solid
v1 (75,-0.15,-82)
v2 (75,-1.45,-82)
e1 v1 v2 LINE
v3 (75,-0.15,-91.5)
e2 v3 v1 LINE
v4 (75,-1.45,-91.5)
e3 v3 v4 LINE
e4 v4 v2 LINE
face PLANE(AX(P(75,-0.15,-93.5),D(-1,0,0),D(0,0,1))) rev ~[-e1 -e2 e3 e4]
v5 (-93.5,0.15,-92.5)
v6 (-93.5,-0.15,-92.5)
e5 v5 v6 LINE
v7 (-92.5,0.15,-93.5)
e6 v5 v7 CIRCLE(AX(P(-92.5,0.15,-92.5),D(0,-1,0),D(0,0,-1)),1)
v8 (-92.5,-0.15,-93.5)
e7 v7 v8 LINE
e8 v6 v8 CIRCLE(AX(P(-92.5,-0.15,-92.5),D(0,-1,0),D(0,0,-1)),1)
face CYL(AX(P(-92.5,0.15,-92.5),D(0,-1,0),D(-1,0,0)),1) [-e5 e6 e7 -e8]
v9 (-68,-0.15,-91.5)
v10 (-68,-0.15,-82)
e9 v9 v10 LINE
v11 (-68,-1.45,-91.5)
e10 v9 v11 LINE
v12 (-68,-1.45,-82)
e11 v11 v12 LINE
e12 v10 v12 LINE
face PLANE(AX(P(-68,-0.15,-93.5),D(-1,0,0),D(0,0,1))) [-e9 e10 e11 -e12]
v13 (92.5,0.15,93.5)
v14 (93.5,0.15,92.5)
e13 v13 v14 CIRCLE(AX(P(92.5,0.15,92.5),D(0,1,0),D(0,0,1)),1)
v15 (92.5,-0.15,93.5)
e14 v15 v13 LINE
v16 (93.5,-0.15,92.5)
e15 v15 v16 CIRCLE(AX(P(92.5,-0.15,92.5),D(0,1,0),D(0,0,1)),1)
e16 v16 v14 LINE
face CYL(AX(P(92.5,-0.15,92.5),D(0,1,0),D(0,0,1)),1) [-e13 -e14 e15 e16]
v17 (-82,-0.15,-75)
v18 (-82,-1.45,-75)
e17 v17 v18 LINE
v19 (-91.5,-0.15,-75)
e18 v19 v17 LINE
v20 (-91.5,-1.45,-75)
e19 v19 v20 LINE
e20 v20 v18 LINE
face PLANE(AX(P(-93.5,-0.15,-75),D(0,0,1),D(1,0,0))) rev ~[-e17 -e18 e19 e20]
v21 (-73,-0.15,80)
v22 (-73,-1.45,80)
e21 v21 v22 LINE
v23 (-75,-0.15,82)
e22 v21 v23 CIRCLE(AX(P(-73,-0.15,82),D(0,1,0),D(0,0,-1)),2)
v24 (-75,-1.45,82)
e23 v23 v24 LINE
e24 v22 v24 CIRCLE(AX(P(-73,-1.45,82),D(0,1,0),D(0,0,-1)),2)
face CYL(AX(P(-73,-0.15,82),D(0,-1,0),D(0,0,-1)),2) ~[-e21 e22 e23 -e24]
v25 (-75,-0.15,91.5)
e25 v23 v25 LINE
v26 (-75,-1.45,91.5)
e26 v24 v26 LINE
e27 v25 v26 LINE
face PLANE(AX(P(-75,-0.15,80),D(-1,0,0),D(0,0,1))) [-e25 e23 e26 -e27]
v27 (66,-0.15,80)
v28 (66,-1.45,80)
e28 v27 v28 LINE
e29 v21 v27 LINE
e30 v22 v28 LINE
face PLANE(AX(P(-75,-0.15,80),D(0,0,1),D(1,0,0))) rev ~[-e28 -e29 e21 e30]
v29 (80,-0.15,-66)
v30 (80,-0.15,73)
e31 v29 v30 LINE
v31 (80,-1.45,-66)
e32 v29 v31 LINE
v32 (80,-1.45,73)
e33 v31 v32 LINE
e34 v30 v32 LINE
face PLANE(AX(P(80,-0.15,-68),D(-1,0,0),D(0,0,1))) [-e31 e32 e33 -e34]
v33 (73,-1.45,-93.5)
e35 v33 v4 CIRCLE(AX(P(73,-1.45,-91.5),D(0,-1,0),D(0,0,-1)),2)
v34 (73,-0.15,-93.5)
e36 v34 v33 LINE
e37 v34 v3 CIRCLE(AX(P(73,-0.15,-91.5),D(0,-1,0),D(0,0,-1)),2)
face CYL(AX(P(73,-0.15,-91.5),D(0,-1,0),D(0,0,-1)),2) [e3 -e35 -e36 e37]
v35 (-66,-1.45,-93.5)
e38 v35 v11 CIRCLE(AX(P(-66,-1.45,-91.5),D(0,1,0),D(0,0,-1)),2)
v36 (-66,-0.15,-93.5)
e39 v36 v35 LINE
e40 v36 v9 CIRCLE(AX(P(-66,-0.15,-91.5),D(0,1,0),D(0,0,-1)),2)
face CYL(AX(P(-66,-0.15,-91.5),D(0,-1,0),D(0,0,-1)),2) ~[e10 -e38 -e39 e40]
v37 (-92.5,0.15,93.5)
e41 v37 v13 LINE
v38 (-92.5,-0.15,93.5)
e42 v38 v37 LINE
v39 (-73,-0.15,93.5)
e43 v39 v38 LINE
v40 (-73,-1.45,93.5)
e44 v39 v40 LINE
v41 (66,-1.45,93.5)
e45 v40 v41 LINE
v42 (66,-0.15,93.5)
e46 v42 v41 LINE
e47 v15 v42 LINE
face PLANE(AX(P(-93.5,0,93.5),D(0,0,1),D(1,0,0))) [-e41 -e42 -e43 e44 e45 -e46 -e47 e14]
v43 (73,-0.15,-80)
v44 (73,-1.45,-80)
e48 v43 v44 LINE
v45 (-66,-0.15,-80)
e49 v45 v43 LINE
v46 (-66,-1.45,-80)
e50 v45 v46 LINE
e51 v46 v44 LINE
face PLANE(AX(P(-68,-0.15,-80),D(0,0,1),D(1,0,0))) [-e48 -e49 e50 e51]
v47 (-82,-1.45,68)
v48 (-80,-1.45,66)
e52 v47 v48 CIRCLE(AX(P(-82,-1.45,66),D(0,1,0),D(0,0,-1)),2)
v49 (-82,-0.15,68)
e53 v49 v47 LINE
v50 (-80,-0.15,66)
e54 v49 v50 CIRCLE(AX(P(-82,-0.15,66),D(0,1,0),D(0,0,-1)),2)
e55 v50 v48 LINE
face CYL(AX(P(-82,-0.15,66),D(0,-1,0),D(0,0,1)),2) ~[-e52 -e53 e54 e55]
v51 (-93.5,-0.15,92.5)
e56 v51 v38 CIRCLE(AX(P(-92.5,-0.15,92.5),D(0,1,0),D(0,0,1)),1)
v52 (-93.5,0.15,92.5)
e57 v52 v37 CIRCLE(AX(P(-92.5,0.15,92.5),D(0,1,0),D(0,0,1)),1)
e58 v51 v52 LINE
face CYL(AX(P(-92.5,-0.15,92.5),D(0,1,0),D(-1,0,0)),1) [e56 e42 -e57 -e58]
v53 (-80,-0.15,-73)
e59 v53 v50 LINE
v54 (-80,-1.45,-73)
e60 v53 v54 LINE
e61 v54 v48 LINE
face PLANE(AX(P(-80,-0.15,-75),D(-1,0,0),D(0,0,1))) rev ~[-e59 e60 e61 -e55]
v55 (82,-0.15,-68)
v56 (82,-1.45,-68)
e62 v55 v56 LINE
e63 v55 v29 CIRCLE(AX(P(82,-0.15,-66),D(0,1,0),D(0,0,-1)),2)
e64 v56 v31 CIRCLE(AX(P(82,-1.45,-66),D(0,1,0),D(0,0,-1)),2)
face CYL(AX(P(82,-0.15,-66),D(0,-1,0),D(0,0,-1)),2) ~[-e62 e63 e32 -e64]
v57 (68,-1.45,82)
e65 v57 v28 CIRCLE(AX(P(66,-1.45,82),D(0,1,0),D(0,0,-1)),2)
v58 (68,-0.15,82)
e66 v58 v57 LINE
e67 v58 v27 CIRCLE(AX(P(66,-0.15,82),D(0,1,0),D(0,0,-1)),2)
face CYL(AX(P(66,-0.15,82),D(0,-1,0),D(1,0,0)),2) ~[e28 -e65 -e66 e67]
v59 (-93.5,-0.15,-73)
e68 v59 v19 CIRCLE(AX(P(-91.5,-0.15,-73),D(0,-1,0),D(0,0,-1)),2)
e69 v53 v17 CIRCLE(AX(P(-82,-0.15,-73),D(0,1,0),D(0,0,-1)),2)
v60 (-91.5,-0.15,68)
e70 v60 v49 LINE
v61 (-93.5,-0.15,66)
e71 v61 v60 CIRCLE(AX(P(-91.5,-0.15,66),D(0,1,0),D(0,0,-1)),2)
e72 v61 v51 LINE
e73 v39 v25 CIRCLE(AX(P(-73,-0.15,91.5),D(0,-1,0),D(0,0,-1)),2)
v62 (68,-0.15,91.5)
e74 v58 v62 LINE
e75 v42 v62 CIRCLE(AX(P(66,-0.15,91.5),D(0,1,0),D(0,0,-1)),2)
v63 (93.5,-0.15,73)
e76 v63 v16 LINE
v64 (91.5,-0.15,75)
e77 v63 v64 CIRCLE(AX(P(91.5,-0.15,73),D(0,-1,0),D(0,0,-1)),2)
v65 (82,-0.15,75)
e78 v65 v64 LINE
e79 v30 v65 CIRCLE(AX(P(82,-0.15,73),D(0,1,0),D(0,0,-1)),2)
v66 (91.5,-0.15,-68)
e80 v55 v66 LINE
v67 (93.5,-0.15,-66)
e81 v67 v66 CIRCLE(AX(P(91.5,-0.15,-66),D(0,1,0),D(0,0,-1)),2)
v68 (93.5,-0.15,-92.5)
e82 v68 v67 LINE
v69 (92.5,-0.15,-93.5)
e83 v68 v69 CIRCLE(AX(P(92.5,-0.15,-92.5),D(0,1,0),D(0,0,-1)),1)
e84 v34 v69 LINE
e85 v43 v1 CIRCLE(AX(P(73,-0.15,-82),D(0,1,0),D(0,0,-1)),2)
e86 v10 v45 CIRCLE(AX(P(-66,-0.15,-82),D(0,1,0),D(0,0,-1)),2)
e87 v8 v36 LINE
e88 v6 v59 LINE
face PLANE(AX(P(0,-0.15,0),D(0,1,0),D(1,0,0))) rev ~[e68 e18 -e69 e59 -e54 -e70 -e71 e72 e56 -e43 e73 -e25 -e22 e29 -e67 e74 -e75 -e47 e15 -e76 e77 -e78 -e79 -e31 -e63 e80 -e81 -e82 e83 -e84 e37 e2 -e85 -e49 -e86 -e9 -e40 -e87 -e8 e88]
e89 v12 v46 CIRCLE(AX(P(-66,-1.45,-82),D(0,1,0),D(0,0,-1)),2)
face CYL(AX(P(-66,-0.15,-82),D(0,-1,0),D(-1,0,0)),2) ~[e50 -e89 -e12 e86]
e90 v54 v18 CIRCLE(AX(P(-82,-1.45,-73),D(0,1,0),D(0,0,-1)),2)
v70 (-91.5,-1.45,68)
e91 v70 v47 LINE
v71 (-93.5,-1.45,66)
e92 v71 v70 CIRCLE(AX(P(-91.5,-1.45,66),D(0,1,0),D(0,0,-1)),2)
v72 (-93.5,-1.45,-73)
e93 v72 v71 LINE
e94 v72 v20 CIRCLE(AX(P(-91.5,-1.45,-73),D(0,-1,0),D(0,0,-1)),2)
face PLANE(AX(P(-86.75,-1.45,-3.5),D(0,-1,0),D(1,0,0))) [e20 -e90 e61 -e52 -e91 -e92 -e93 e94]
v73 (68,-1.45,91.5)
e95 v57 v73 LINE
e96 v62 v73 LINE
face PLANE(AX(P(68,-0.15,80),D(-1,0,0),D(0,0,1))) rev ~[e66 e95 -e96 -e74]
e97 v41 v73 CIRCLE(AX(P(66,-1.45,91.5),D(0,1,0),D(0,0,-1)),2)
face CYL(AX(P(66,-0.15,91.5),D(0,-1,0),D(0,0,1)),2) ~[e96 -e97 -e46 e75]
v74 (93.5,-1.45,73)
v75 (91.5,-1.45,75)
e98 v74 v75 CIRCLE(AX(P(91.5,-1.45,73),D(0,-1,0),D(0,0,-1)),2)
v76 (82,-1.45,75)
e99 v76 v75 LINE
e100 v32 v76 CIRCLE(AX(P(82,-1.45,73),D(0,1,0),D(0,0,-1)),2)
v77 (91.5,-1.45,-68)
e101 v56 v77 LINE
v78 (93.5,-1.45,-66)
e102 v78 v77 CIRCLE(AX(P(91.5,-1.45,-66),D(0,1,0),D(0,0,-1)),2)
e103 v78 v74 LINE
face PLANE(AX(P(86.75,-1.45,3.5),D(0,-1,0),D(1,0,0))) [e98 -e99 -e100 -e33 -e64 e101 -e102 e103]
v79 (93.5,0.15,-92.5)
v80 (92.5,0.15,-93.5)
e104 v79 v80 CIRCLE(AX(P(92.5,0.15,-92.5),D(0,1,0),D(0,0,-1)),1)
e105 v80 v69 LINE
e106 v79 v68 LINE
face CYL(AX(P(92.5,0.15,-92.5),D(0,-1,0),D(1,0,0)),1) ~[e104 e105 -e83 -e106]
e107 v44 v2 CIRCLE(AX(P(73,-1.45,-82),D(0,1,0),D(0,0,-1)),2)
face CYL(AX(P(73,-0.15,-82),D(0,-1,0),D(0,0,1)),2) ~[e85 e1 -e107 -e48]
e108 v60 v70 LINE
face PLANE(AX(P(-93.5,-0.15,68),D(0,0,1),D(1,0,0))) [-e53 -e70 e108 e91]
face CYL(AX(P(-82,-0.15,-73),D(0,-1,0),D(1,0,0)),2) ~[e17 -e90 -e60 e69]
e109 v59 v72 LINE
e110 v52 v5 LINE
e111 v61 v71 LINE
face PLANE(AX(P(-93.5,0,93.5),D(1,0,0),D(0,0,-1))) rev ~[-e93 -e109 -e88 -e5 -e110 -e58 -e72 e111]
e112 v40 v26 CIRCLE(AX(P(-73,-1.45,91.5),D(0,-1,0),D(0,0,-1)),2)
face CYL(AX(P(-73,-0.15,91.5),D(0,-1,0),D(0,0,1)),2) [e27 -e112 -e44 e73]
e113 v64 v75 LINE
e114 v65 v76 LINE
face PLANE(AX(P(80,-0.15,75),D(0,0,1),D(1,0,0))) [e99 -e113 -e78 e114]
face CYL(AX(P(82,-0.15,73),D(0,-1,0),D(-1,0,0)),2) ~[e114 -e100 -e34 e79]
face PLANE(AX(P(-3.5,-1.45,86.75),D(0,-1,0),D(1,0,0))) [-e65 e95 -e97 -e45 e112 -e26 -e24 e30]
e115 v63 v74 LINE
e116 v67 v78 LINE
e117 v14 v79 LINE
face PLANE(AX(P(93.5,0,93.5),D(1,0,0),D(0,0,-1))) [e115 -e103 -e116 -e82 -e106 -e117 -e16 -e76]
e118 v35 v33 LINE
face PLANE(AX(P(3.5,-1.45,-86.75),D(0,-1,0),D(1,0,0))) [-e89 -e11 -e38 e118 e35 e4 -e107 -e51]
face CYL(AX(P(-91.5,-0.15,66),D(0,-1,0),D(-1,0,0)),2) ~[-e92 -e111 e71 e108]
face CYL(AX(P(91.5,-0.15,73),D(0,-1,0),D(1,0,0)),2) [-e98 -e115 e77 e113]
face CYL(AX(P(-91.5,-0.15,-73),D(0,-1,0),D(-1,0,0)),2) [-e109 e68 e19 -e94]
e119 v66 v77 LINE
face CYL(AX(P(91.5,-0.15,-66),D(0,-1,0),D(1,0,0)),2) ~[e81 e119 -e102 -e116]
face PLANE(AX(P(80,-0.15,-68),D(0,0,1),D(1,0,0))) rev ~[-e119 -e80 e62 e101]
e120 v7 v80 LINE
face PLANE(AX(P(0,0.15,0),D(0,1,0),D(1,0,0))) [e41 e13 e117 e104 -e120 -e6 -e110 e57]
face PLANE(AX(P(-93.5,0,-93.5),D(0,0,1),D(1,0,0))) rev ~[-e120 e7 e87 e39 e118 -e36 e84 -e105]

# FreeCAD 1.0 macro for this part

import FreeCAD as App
import Part
import Sketcher
Q = App.Units.Quantity


def edges_at(feature, points):
    """Names of the edges that pass closest to the given points."""
    edges = feature.Shape.Edges
    near = lambda p: min(range(len(edges)), key=lambda i: edges[i].distToShape(Part.Vertex(*p))[0])
    return sorted({f"Edge{near(p) + 1}" for p in points})


def add_polygon(sketch, points):
    """Adds a closed chain of lines whose ends are joined by coincident constraints."""
    first, n = sketch.GeometryCount, len(points)
    for a, b in zip(points, points[1:] + points[:1]):
        sketch.addGeometry(Part.LineSegment(App.Vector(*a, 0), App.Vector(*b, 0)), False)
    for i in range(n):
        sketch.addConstraint(Sketcher.Constraint("Coincident", first + i, 2, first + (i + 1) % n, 1))

doc = App.newDocument("Part")
params = doc.addObject("Spreadsheet::Sheet", "Params")
for row, (alias, value) in enumerate([
    ("sketch1_width", "187 mm"),
    ("pad1_length", "0.3 mm"),
    ("sketch2_width", "143 mm"),
    ("sketch2_width2", "13.5 mm"),
    ("pad2_length", "1.3 mm"),
    ("fillet_radius", "2 mm"),
    ("fillet2_radius", "1 mm"),
], start=1):
    params.set(f"A{row}", alias)
    params.set(f"B{row}", "=" + value)
    params.setAlias(f"B{row}", alias)

body = doc.addObject("PartDesign::Body", "Body")

sketch1 = body.newObject("Sketcher::SketchObject", "Sketch")
sketch1.AttachmentSupport = (doc.getObject("XZ_Plane"), [""])
sketch1.MapMode = "FlatFace"
add_polygon(sketch1, [(-94, -94), (-94, 94), (94, 94), (94, -94)])
sketch1.addConstraint(Sketcher.Constraint("Vertical", 0))
sketch1.addConstraint(Sketcher.Constraint("Horizontal", 1))
sketch1.addConstraint(Sketcher.Constraint("Vertical", 2))
sketch1.addConstraint(Sketcher.Constraint("Horizontal", 3))
sketch1.addConstraint(Sketcher.Constraint("Symmetric", 0, 2, 2, 2, -1, 1))
sketch1.addConstraint(Sketcher.Constraint("Equal", 3, 0))
sketch1.addConstraint(Sketcher.Constraint("DistanceX", 1, 1, 1, 2, Q("187 mm")))
sketch1.setExpression("Constraints[10]", "Params.sketch1_width")
pad1 = body.newObject("PartDesign::Pad", "Pad")
pad1.Profile = sketch1
pad1.setExpression("Length", "Params.pad1_length")
pad1.Midplane = True

sketch2 = body.newObject("Sketcher::SketchObject", "Sketch001")
sketch2.AttachmentSupport = (doc.getObject("XZ_Plane"), [""])
sketch2.MapMode = "FlatFace"
sketch2.AttachmentOffset = App.Placement(App.Vector(0, 0, 0.15), App.Rotation())
add_polygon(sketch2, [(-94, 68), (-94, -75), (-80, -75), (-80, 68)])
add_polygon(sketch2, [(-68, -80), (-68, -94), (75, -94), (75, -80)])
add_polygon(sketch2, [(-75, 94), (-75, 80), (68, 80), (68, 94)])
add_polygon(sketch2, [(80, 75), (80, -68), (94, -68), (94, 75)])
sketch2.addConstraint(Sketcher.Constraint("Vertical", 0))
sketch2.addConstraint(Sketcher.Constraint("Horizontal", 1))
sketch2.addConstraint(Sketcher.Constraint("Vertical", 2))
sketch2.addConstraint(Sketcher.Constraint("Horizontal", 3))
sketch2.addConstraint(Sketcher.Constraint("Vertical", 4))
sketch2.addConstraint(Sketcher.Constraint("Horizontal", 5))
sketch2.addConstraint(Sketcher.Constraint("Vertical", 6))
sketch2.addConstraint(Sketcher.Constraint("Horizontal", 7))
sketch2.addConstraint(Sketcher.Constraint("Vertical", 8))
sketch2.addConstraint(Sketcher.Constraint("Horizontal", 9))
sketch2.addConstraint(Sketcher.Constraint("Vertical", 10))
sketch2.addConstraint(Sketcher.Constraint("Horizontal", 11))
sketch2.addConstraint(Sketcher.Constraint("Vertical", 12))
sketch2.addConstraint(Sketcher.Constraint("Horizontal", 13))
sketch2.addConstraint(Sketcher.Constraint("Vertical", 14))
sketch2.addConstraint(Sketcher.Constraint("Horizontal", 15))
sketch2.addConstraint(Sketcher.Constraint("Symmetric", 6, 2, 8, 2, -1, 1))
sketch2.addConstraint(Sketcher.Constraint("Symmetric", 4, 2, 10, 2, -1, 1))
sketch2.addConstraint(Sketcher.Constraint("Symmetric", 2, 2, 12, 2, -1, 1))
sketch2.addConstraint(Sketcher.Constraint("Symmetric", 0, 2, 14, 2, -1, 1))
sketch2.addConstraint(Sketcher.Constraint("Equal", 11, 0))
sketch2.addConstraint(Sketcher.Constraint("Equal", 15, 4))
sketch2.addConstraint(Sketcher.Constraint("DistanceX", 5, 1, 5, 2, Q("143 mm")))
sketch2.addConstraint(Sketcher.Constraint("DistanceX", 1, 1, 1, 2, Q("13.5 mm")))
sketch2.addConstraint(Sketcher.Constraint("DistanceY", 0, 2, -1, 1, Q("75 mm")))
sketch2.addConstraint(Sketcher.Constraint("DistanceX", 1, 2, -1, 1, Q("80 mm")))
sketch2.addConstraint(Sketcher.Constraint("DistanceX", 4, 2, -1, 1, Q("68 mm")))
sketch2.addConstraint(Sketcher.Constraint("DistanceY", 6, 2, -1, 1, Q("80 mm")))
sketch2.setExpression("Constraints[38]", "Params.sketch2_width")
sketch2.setExpression("Constraints[39]", "Params.sketch2_width2")
pad2 = body.newObject("PartDesign::Pad", "Pad001")
pad2.Profile = sketch2
pad2.setExpression("Length", "Params.pad2_length")
doc.recompute()

fillet = body.newObject("PartDesign::Fillet", "Fillet")
fillet.Base = (pad2, edges_at(pad2, [
    (75, -0.8, -93.5),
    (75, -0.8, -80),
    (-68, -0.8, -80),
    (-68, -0.8, -93.5),
    (-80, -0.8, -75),
    (-80, -0.8, 68),
    (-93.5, -0.8, 68),
    (-93.5, -0.8, -75),
    (-75, -0.8, 80),
    (68, -0.8, 80),
    (68, -0.8, 93.5),
    (-75, -0.8, 93.5),
    (80, -0.8, 75),
    (80, -0.8, -68),
    (93.5, -0.8, -68),
    (93.5, -0.8, 75),
]))
fillet.setExpression("Radius", "Params.fillet_radius")
doc.recompute()

fillet2 = body.newObject("PartDesign::Fillet", "Fillet001")
fillet2.Base = (fillet, edges_at(fillet, [
    (93.5, 0, 93.5),
    (-93.5, 0, 93.5),
    (-93.5, 0, -93.5),
    (93.5, 0, -93.5),
]))
fillet2.setExpression("Radius", "Params.fillet2_radius")

doc.recompute()
